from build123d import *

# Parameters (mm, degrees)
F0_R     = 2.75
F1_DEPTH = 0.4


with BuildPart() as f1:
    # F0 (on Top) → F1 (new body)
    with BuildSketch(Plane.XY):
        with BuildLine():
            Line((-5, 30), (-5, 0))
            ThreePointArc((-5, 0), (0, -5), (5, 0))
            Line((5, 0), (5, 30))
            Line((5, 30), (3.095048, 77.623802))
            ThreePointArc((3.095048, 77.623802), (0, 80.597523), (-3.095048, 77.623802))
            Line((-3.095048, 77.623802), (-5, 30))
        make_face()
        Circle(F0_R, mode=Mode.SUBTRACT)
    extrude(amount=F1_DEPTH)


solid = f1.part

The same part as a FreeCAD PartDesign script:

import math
import FreeCAD as App
import Part
import Sketcher

doc = App.newDocument("Part")
body = doc.addObject("PartDesign::Body", "Body")

# Sketch on XY plane
sketch1 = body.newObject("Sketcher::SketchObject", "Sketch")
sketch1.AttachmentSupport = (doc.getObject("XY_Plane"), [""])
sketch1.MapMode = "FlatFace"
sketch1.addGeometry([
    Part.LineSegment(App.Vector(-5, 30, 0), App.Vector(-5, 0, 0)),  # 0
    Part.ArcOfCircle(Part.Circle(App.Vector(0, 0, 0), App.Vector(0, 0, 1), 5), math.radians(180), math.radians(360)),  # 1
    Part.LineSegment(App.Vector(5, 0, 0), App.Vector(5, 30, 0)),  # 2
    Part.LineSegment(App.Vector(5, 30, 0), App.Vector(3.095048, 77.623802, 0)),  # 3
    Part.ArcOfCircle(Part.Circle(App.Vector(0, 77.5, 0), App.Vector(0, 0, 1), 3.097523), math.radians(2.290613), math.radians(177.709387)),  # 4
    Part.LineSegment(App.Vector(-3.095048, 77.623802, 0), App.Vector(-5, 30, 0)),  # 5
    Part.Circle(App.Vector(0, 0, 0), App.Vector(0, 0, 1), 2.75),  # 6
], False)
sketch1.addConstraint([
    Sketcher.Constraint("Tangent", 0, 2, 1, 1),
    Sketcher.Constraint("Tangent", 1, 2, 2, 1),
    Sketcher.Constraint("Coincident", 2, 2, 3, 1),
    Sketcher.Constraint("Tangent", 3, 2, 4, 1),
    Sketcher.Constraint("Tangent", 4, 2, 5, 1),
    Sketcher.Constraint("Coincident", 5, 2, 0, 1),
    Sketcher.Constraint("Vertical", 0),
    Sketcher.Constraint("Vertical", 2),
    Sketcher.Constraint("Coincident", 1, 3, -1, 1),
    Sketcher.Constraint("Coincident", 6, 3, -1, 1),
    Sketcher.Constraint("PointOnObject", 4, 3, -2),
    Sketcher.Constraint("Horizontal", 2, 2, 5, 2),
    Sketcher.Constraint("Radius", 1, 5.0),
    Sketcher.Constraint("Diameter", 6, 5.5),
    Sketcher.Constraint("DistanceY", 0, 2, 0, 1, 30.0),
    Sketcher.Constraint("DistanceY", -1, 1, 4, 3, 77.5),
    Sketcher.Constraint("Radius", 4, 3.097523),
])
pad1 = body.newObject("PartDesign::Pad", "Pad")
pad1.Profile = sketch1
pad1.Length = 0.4

doc.recompute()
